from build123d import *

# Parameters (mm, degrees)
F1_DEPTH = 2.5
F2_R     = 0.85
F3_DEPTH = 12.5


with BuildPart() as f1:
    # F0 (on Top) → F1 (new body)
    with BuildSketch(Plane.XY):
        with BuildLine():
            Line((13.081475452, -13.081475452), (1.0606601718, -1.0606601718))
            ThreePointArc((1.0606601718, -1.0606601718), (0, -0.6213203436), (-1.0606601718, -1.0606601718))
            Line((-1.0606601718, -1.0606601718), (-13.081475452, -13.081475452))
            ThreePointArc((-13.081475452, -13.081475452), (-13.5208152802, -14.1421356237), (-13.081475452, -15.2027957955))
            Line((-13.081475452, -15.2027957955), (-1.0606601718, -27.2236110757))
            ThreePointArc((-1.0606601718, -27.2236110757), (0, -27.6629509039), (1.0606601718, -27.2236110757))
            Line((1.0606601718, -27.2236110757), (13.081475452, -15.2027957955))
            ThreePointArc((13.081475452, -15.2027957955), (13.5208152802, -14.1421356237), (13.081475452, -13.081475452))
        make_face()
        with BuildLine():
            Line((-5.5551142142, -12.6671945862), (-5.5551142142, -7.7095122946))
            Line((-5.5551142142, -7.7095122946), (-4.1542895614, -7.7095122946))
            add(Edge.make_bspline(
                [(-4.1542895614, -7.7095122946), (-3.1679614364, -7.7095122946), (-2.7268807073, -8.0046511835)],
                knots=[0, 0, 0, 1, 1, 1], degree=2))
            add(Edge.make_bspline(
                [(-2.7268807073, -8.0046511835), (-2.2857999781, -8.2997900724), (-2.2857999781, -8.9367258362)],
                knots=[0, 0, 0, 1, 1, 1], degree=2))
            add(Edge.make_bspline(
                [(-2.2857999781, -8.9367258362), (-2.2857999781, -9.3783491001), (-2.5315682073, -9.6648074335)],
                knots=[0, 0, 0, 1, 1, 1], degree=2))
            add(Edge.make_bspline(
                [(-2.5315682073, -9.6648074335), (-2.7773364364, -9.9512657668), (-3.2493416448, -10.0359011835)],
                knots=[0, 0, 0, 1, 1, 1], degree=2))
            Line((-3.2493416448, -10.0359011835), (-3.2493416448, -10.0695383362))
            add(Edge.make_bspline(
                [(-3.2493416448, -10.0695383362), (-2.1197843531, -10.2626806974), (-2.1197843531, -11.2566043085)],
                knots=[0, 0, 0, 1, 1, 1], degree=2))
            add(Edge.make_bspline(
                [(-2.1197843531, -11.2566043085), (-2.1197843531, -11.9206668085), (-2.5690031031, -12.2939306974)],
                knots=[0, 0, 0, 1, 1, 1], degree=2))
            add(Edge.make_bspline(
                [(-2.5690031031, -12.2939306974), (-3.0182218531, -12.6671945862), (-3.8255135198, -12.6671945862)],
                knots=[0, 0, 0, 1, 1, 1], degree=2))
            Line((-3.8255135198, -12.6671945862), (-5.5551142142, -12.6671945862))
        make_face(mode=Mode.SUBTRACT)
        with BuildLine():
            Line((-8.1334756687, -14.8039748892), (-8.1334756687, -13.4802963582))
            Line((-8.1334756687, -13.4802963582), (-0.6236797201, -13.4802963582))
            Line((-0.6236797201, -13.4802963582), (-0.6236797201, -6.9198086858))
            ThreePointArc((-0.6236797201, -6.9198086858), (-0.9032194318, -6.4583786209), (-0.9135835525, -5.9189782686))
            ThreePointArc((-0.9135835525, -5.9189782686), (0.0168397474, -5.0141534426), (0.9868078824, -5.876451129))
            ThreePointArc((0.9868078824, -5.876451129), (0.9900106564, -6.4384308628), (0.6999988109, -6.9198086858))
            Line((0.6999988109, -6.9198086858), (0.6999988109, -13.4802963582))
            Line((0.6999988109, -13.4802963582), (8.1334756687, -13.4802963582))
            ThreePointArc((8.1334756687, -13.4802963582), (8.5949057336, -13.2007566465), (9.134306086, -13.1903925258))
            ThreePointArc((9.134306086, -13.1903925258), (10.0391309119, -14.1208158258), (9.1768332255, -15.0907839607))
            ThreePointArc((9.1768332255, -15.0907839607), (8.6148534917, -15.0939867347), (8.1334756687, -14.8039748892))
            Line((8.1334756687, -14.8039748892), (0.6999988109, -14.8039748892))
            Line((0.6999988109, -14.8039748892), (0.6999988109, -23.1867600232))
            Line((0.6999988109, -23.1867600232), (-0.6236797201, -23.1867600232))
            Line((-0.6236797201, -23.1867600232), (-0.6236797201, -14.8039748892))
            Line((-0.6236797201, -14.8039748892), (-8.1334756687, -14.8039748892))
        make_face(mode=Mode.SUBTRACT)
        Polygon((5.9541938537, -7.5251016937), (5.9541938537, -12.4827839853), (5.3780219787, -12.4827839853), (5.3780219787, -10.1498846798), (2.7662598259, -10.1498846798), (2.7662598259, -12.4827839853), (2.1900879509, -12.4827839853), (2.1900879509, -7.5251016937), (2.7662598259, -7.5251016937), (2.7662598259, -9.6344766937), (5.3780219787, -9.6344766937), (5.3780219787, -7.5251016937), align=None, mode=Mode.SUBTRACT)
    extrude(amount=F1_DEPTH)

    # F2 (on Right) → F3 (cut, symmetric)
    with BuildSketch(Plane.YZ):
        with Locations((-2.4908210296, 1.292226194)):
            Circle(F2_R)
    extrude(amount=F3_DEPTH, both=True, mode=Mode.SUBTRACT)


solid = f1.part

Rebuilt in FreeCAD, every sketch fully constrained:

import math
import FreeCAD as App
import Part
import Sketcher

V = App.Vector
Q = App.Units.Quantity


def add_polygon(sketch, points):
    """Adds a closed chain of lines whose ends are joined by coincident constraints."""
    first, n = sketch.GeometryCount, len(points)
    for a, b in zip(points, points[1:] + points[:1]):
        sketch.addGeometry(Part.LineSegment(App.Vector(*a, 0), App.Vector(*b, 0)), False)
    for i in range(n):
        sketch.addConstraint(Sketcher.Constraint("Coincident", first + i, 2, first + (i + 1) % n, 1))

doc = App.newDocument("Part")
body = doc.addObject("PartDesign::Body", "Body")

sketch1 = body.newObject("Sketcher::SketchObject", "Sketch")
sketch1.AttachmentSupport = (doc.getObject("XY_Plane"), [""])
sketch1.MapMode = "FlatFace"
sketch1.addGeometry(Part.LineSegment(V(13.081475, -13.081475, 0), V(1.06066, -1.06066, 0)), False)
sketch1.addGeometry(Part.ArcOfCircle(Part.Circle(V(0, -2.12132, 0), V(0, 0, 1), 1.5), math.radians(45), math.radians(135)), False)
sketch1.addGeometry(Part.LineSegment(V(-1.06066, -1.06066, 0), V(-13.081475, -13.081475, 0)), False)
sketch1.addGeometry(Part.ArcOfCircle(Part.Circle(V(-12.020815, -14.142136, 0), V(0, 0, 1), 1.5), math.radians(135), math.radians(225)), False)
sketch1.addGeometry(Part.LineSegment(V(-13.081475, -15.202796, 0), V(-1.06066, -27.223611, 0)), False)
sketch1.addGeometry(Part.ArcOfCircle(Part.Circle(V(0, -26.162951, 0), V(0, 0, 1), 1.5), math.radians(-135), math.radians(-45)), False)
sketch1.addGeometry(Part.LineSegment(V(1.06066, -27.223611, 0), V(13.081475, -15.202796, 0)), False)
sketch1.addGeometry(Part.ArcOfCircle(Part.Circle(V(12.020815, -14.142136, 0), V(0, 0, 1), 1.5), math.radians(-45), math.radians(45)), False)
sketch1.addGeometry(Part.LineSegment(V(-3.825514, -12.667195, 0), V(-5.555114, -12.667195, 0)), False)
sketch1.addGeometry(Part.LineSegment(V(-5.555114, -12.667195, 0), V(-5.555114, -7.709512, 0)), False)
sketch1.addGeometry(Part.LineSegment(V(-5.555114, -7.709512, 0), V(-4.15429, -7.709512, 0)), False)
sketch1.addGeometry(Part.BSplineCurve([V(-4.15429, -7.709512, 0), V(-3.167961, -7.709512, 0), V(-2.726881, -8.004651, 0)], [3, 3], [0, 1], False, 2, [1, 1, 1], False), False)
sketch1.addGeometry(Part.BSplineCurve([V(-2.726881, -8.004651, 0), V(-2.2858, -8.29979, 0), V(-2.2858, -9.378349, 0), V(-2.531568, -9.664807, 0)], [3, 1, 3], [0, 1, 1.693356048], False, 2, [1, 1, 1, 1], False), False)
sketch1.addGeometry(Part.BSplineCurve([V(-2.531568, -9.664807, 0), V(-2.777336, -9.951266, 0), V(-3.249342, -10.035901, 0)], [3, 3], [0, 1], False, 2, [1, 1, 1], False), False)
sketch1.addGeometry(Part.LineSegment(V(-3.249342, -10.035901, 0), V(-3.249342, -10.069538, 0)), False)
sketch1.addGeometry(Part.BSplineCurve([V(-3.249342, -10.069538, 0), V(-2.119784, -10.262681, 0), V(-2.119784, -11.920667, 0), V(-2.569003, -12.293931, 0)], [3, 1, 3], [0, 1, 1.668122271], False, 2, [1, 1, 1, 1], False), False)
sketch1.addGeometry(Part.BSplineCurve([V(-2.569003, -12.293931, 0), V(-3.018222, -12.667195, 0), V(-3.825514, -12.667195, 0)], [3, 3], [0, 1], False, 2, [1, 1, 1], False), False)
sketch1.addGeometry(Part.LineSegment(V(-0.62368, -14.803975, 0), V(-8.133476, -14.803975, 0)), False)
sketch1.addGeometry(Part.LineSegment(V(-8.133476, -14.803975, 0), V(-8.133476, -13.480296, 0)), False)
sketch1.addGeometry(Part.LineSegment(V(-8.133476, -13.480296, 0), V(-0.62368, -13.480296, 0)), False)
sketch1.addGeometry(Part.LineSegment(V(-0.62368, -13.480296, 0), V(-0.62368, -6.919809, 0)), False)
sketch1.addGeometry(Part.ArcOfCircle(Part.Circle(V(0.094379, -6.169411, 0), V(0, 0, 1), 1.038608), math.radians(166.047147), math.radians(226.261577)), False)
sketch1.addGeometry(Part.ArcOfCircle(Part.Circle(V(0.03816, -5.966862, 0), V(0, 0, 1), 0.952947), math.radians(5.444116), math.radians(177.119797)), False)
sketch1.addGeometry(Part.ArcOfCircle(Part.Circle(V(-0.011448, -6.163139, 0), V(0, 0, 1), 1.038608), math.radians(-46.764314), math.radians(16.023479)), False)
sketch1.addGeometry(Part.LineSegment(V(0.699999, -6.919809, 0), V(0.699999, -13.480296, 0)), False)
sketch1.addGeometry(Part.LineSegment(V(0.699999, -13.480296, 0), V(8.133476, -13.480296, 0)), False)
sketch1.addGeometry(Part.ArcOfCircle(Part.Circle(V(8.883873, -14.198355, 0), V(0, 0, 1), 1.038608), math.radians(76.047147), math.radians(136.261577)), False)
sketch1.addGeometry(Part.ArcOfCircle(Part.Circle(V(9.086423, -14.142136, 0), V(0, 0, 1), 0.952947), math.radians(-84.555884), math.radians(87.119797)), False)
sketch1.addGeometry(Part.ArcOfCircle(Part.Circle(V(8.890145, -14.092528, 0), V(0, 0, 1), 1.038608), math.radians(-136.764314), math.radians(-73.976521)), False)
sketch1.addGeometry(Part.LineSegment(V(8.133476, -14.803975, 0), V(0.699999, -14.803975, 0)), False)
sketch1.addGeometry(Part.LineSegment(V(0.699999, -14.803975, 0), V(0.699999, -23.18676, 0)), False)
sketch1.addGeometry(Part.LineSegment(V(0.699999, -23.18676, 0), V(-0.62368, -23.18676, 0)), False)
sketch1.addGeometry(Part.LineSegment(V(-0.62368, -23.18676, 0), V(-0.62368, -14.803975, 0)), False)
add_polygon(sketch1, [(5.378022, -7.525102), (5.954194, -7.525102), (5.954194, -12.482784), (5.378022, -12.482784), (5.378022, -10.149885), (2.76626, -10.149885), (2.76626, -12.482784), (2.190088, -12.482784), (2.190088, -7.525102), (2.76626, -7.525102), (2.76626, -9.634477), (5.378022, -9.634477)])
sketch1.addConstraint([
    Sketcher.Constraint("Block", 11),
    Sketcher.Constraint("Block", 12),
    Sketcher.Constraint("Block", 13),
    Sketcher.Constraint("Block", 15),
    Sketcher.Constraint("Block", 16),
    Sketcher.Constraint("Tangent", 0, 2, 1, 1),
    Sketcher.Constraint("Tangent", 1, 2, 2, 1),
    Sketcher.Constraint("Tangent", 2, 2, 3, 1),
    Sketcher.Constraint("Tangent", 3, 2, 4, 1),
    Sketcher.Constraint("Tangent", 4, 2, 5, 1),
    Sketcher.Constraint("Tangent", 5, 2, 6, 1),
    Sketcher.Constraint("Tangent", 6, 2, 7, 1),
    Sketcher.Constraint("Tangent", 7, 2, 0, 1),
    Sketcher.Constraint("Coincident", 8, 2, 9, 1),
    Sketcher.Constraint("Coincident", 9, 2, 10, 1),
    Sketcher.Constraint("Coincident", 10, 2, 11, 1),
    Sketcher.Constraint("Coincident", 13, 2, 14, 1),
    Sketcher.Constraint("Coincident", 14, 2, 15, 1),
    Sketcher.Constraint("Coincident", 16, 2, 8, 1),
    Sketcher.Constraint("Coincident", 17, 2, 18, 1),
    Sketcher.Constraint("Coincident", 18, 2, 19, 1),
    Sketcher.Constraint("Coincident", 19, 2, 20, 1),
    Sketcher.Constraint("Coincident", 20, 2, 21, 2),
    Sketcher.Constraint("Coincident", 21, 1, 22, 2),
    Sketcher.Constraint("Coincident", 22, 1, 23, 2),
    Sketcher.Constraint("Coincident", 23, 1, 24, 1),
    Sketcher.Constraint("Coincident", 24, 2, 25, 1),
    Sketcher.Constraint("Coincident", 25, 2, 26, 2),
    Sketcher.Constraint("Coincident", 26, 1, 27, 2),
    Sketcher.Constraint("Coincident", 27, 1, 28, 2),
    Sketcher.Constraint("Coincident", 28, 1, 29, 1),
    Sketcher.Constraint("Coincident", 29, 2, 30, 1),
    Sketcher.Constraint("Coincident", 30, 2, 31, 1),
    Sketcher.Constraint("Coincident", 31, 2, 32, 1),
    Sketcher.Constraint("Coincident", 32, 2, 17, 1),
    Sketcher.Constraint("Horizontal", 8),
    Sketcher.Constraint("Vertical", 9),
    Sketcher.Constraint("Horizontal", 10),
    Sketcher.Constraint("Horizontal", 17),
    Sketcher.Constraint("Vertical", 18),
    Sketcher.Constraint("Horizontal", 19),
    Sketcher.Constraint("Vertical", 20),
    Sketcher.Constraint("Vertical", 24),
    Sketcher.Constraint("Horizontal", 25),
    Sketcher.Constraint("Horizontal", 29),
    Sketcher.Constraint("Vertical", 30),
    Sketcher.Constraint("Horizontal", 31),
    Sketcher.Constraint("Vertical", 32),
    Sketcher.Constraint("Horizontal", 33),
    Sketcher.Constraint("Vertical", 34),
    Sketcher.Constraint("Horizontal", 35),
    Sketcher.Constraint("Vertical", 36),
    Sketcher.Constraint("Horizontal", 37),
    Sketcher.Constraint("Vertical", 38),
    Sketcher.Constraint("Horizontal", 39),
    Sketcher.Constraint("Vertical", 40),
    Sketcher.Constraint("Horizontal", 41),
    Sketcher.Constraint("Vertical", 42),
    Sketcher.Constraint("Horizontal", 43),
    Sketcher.Constraint("Vertical", 44),
    Sketcher.Constraint("Equal", 1, 3),
    Sketcher.Constraint("Equal", 3, 5),
    Sketcher.Constraint("Equal", 5, 7),
    Sketcher.Constraint("Equal", 21, 23),
    Sketcher.Constraint("Equal", 23, 26),
    Sketcher.Constraint("Equal", 22, 27),
    Sketcher.Constraint("Equal", 26, 28),
    Sketcher.Constraint("Symmetric", 3, 3, 7, 3, -2),
    Sketcher.Constraint("Symmetric", 18, 2, 25, 2, -2),
    Sketcher.Constraint("Symmetric", 17, 2, 28, 1, -2),
    Sketcher.Constraint("PointOnObject", 1, 3, -2),
    Sketcher.Constraint("PointOnObject", 5, 3, -2),
    Sketcher.Constraint("Perpendicular", 0, 2),
    Sketcher.Constraint("Perpendicular", 2, 4),
    Sketcher.Constraint("Horizontal", 7, 3, 27, 3),
    Sketcher.Constraint("Horizontal", 20, 2, 23, 1),
    Sketcher.Constraint("Horizontal", 35, 2, 38, 2),
    Sketcher.Constraint("Horizontal", 33, 2, 40, 2),
    Sketcher.Constraint("Vertical", 24, 2, 29, 2),
    Sketcher.Constraint("Vertical", 20, 2, 31, 2),
    Sketcher.Constraint("Vertical", 38, 2, 41, 2),
    Sketcher.Constraint("Vertical", 36, 2, 43, 2),
    Sketcher.Constraint("Equal", 35, 39),
    Sketcher.Constraint("Equal", 31, 18),
    Sketcher.Constraint("Equal", 9, 34),
    Sketcher.Constraint("Radius", 1, Q("1.5 mm")),
    Sketcher.Constraint("Distance", 0, Q("17 mm")),
    Sketcher.Constraint("DistanceX", -1, 1, 23, 1, Q("0.699999 mm")),
    Sketcher.Constraint("DistanceX", 8, 2, 8, 1, Q("1.729601 mm")),
    Sketcher.Constraint("DistanceY", 36, 1, 36, 2, Q("2.332899 mm")),
    Sketcher.Constraint("Radius", 21, Q("1.038608 mm")),
    Sketcher.Constraint("Radius", 22, Q("0.952947 mm")),
    Sketcher.Constraint("DistanceX", 3, 2, 17, 2, Q("4.948 mm")),
    Sketcher.Constraint("DistanceX", 31, 2, 31, 1, Q("1.323679 mm")),
    Sketcher.Constraint("DistanceX", 33, 1, 33, 2, Q("0.576172 mm")),
    Sketcher.Constraint("DistanceY", 33, 2, -1, 1, Q("7.525102 mm")),
    Sketcher.Constraint("DistanceX", 22, 3, 0, 2, Q("1.022501 mm")),
    Sketcher.Constraint("DistanceY", 22, 3, 0, 2, Q("4.906202 mm")),
    Sketcher.Constraint("DistanceX", 26, 3, 6, 2, Q("4.197602 mm")),
    Sketcher.Constraint("DistanceY", 3, 2, 8, 2, Q("2.535601 mm")),
    Sketcher.Constraint("DistanceY", 9, 2, 21, 3, Q("1.540101 mm")),
    Sketcher.Constraint("DistanceY", 14, 2, 23, 3, Q("3.906399 mm")),
    Sketcher.Constraint("DistanceY", 17, 2, 2, 2, Q("1.722499 mm")),
    Sketcher.Constraint("DistanceX", 37, 2, 37, 1, Q("2.611762 mm")),
    Sketcher.Constraint("DistanceY", 20, 1, 20, 2, Q("6.560488 mm")),
    Sketcher.Constraint("DistanceY", 30, 2, 30, 1, Q("8.382785 mm")),
    Sketcher.Constraint("DistanceY", 42, 2, 42, 1, Q("2.109375 mm")),
    Sketcher.Constraint("DistanceX", -1, 1, 35, 2, Q("5.378022 mm")),
    Sketcher.Constraint("DistanceX", 26, 3, 27, 3, Q("0.202549 mm")),
    Sketcher.Constraint("DistanceX", 26, 3, 28, 3, Q("0.006272 mm")),
])
pad1 = body.newObject("PartDesign::Pad", "Pad")
pad1.Profile = sketch1
pad1.Length = 2.5

sketch2 = body.newObject("Sketcher::SketchObject", "Sketch001")
sketch2.AttachmentSupport = (doc.getObject("YZ_Plane"), [""])
sketch2.MapMode = "FlatFace"
sketch2.addGeometry(Part.Circle(V(-2.5, 1.3, 0), V(0, 0, 1), 0.8), False)
sketch2.addConstraint([
    Sketcher.Constraint("Diameter", 0, Q("1.7 mm")),
    Sketcher.Constraint("DistanceX", 0, 3, -1, 1, Q("2.490821 mm")),
    Sketcher.Constraint("DistanceY", -1, 1, 0, 3, Q("1.292226 mm")),
])
pocket1 = body.newObject("PartDesign::Pocket", "Pocket")
pocket1.Profile = sketch2
pocket1.Length = 25
pocket1.Midplane = True

doc.recompute()
